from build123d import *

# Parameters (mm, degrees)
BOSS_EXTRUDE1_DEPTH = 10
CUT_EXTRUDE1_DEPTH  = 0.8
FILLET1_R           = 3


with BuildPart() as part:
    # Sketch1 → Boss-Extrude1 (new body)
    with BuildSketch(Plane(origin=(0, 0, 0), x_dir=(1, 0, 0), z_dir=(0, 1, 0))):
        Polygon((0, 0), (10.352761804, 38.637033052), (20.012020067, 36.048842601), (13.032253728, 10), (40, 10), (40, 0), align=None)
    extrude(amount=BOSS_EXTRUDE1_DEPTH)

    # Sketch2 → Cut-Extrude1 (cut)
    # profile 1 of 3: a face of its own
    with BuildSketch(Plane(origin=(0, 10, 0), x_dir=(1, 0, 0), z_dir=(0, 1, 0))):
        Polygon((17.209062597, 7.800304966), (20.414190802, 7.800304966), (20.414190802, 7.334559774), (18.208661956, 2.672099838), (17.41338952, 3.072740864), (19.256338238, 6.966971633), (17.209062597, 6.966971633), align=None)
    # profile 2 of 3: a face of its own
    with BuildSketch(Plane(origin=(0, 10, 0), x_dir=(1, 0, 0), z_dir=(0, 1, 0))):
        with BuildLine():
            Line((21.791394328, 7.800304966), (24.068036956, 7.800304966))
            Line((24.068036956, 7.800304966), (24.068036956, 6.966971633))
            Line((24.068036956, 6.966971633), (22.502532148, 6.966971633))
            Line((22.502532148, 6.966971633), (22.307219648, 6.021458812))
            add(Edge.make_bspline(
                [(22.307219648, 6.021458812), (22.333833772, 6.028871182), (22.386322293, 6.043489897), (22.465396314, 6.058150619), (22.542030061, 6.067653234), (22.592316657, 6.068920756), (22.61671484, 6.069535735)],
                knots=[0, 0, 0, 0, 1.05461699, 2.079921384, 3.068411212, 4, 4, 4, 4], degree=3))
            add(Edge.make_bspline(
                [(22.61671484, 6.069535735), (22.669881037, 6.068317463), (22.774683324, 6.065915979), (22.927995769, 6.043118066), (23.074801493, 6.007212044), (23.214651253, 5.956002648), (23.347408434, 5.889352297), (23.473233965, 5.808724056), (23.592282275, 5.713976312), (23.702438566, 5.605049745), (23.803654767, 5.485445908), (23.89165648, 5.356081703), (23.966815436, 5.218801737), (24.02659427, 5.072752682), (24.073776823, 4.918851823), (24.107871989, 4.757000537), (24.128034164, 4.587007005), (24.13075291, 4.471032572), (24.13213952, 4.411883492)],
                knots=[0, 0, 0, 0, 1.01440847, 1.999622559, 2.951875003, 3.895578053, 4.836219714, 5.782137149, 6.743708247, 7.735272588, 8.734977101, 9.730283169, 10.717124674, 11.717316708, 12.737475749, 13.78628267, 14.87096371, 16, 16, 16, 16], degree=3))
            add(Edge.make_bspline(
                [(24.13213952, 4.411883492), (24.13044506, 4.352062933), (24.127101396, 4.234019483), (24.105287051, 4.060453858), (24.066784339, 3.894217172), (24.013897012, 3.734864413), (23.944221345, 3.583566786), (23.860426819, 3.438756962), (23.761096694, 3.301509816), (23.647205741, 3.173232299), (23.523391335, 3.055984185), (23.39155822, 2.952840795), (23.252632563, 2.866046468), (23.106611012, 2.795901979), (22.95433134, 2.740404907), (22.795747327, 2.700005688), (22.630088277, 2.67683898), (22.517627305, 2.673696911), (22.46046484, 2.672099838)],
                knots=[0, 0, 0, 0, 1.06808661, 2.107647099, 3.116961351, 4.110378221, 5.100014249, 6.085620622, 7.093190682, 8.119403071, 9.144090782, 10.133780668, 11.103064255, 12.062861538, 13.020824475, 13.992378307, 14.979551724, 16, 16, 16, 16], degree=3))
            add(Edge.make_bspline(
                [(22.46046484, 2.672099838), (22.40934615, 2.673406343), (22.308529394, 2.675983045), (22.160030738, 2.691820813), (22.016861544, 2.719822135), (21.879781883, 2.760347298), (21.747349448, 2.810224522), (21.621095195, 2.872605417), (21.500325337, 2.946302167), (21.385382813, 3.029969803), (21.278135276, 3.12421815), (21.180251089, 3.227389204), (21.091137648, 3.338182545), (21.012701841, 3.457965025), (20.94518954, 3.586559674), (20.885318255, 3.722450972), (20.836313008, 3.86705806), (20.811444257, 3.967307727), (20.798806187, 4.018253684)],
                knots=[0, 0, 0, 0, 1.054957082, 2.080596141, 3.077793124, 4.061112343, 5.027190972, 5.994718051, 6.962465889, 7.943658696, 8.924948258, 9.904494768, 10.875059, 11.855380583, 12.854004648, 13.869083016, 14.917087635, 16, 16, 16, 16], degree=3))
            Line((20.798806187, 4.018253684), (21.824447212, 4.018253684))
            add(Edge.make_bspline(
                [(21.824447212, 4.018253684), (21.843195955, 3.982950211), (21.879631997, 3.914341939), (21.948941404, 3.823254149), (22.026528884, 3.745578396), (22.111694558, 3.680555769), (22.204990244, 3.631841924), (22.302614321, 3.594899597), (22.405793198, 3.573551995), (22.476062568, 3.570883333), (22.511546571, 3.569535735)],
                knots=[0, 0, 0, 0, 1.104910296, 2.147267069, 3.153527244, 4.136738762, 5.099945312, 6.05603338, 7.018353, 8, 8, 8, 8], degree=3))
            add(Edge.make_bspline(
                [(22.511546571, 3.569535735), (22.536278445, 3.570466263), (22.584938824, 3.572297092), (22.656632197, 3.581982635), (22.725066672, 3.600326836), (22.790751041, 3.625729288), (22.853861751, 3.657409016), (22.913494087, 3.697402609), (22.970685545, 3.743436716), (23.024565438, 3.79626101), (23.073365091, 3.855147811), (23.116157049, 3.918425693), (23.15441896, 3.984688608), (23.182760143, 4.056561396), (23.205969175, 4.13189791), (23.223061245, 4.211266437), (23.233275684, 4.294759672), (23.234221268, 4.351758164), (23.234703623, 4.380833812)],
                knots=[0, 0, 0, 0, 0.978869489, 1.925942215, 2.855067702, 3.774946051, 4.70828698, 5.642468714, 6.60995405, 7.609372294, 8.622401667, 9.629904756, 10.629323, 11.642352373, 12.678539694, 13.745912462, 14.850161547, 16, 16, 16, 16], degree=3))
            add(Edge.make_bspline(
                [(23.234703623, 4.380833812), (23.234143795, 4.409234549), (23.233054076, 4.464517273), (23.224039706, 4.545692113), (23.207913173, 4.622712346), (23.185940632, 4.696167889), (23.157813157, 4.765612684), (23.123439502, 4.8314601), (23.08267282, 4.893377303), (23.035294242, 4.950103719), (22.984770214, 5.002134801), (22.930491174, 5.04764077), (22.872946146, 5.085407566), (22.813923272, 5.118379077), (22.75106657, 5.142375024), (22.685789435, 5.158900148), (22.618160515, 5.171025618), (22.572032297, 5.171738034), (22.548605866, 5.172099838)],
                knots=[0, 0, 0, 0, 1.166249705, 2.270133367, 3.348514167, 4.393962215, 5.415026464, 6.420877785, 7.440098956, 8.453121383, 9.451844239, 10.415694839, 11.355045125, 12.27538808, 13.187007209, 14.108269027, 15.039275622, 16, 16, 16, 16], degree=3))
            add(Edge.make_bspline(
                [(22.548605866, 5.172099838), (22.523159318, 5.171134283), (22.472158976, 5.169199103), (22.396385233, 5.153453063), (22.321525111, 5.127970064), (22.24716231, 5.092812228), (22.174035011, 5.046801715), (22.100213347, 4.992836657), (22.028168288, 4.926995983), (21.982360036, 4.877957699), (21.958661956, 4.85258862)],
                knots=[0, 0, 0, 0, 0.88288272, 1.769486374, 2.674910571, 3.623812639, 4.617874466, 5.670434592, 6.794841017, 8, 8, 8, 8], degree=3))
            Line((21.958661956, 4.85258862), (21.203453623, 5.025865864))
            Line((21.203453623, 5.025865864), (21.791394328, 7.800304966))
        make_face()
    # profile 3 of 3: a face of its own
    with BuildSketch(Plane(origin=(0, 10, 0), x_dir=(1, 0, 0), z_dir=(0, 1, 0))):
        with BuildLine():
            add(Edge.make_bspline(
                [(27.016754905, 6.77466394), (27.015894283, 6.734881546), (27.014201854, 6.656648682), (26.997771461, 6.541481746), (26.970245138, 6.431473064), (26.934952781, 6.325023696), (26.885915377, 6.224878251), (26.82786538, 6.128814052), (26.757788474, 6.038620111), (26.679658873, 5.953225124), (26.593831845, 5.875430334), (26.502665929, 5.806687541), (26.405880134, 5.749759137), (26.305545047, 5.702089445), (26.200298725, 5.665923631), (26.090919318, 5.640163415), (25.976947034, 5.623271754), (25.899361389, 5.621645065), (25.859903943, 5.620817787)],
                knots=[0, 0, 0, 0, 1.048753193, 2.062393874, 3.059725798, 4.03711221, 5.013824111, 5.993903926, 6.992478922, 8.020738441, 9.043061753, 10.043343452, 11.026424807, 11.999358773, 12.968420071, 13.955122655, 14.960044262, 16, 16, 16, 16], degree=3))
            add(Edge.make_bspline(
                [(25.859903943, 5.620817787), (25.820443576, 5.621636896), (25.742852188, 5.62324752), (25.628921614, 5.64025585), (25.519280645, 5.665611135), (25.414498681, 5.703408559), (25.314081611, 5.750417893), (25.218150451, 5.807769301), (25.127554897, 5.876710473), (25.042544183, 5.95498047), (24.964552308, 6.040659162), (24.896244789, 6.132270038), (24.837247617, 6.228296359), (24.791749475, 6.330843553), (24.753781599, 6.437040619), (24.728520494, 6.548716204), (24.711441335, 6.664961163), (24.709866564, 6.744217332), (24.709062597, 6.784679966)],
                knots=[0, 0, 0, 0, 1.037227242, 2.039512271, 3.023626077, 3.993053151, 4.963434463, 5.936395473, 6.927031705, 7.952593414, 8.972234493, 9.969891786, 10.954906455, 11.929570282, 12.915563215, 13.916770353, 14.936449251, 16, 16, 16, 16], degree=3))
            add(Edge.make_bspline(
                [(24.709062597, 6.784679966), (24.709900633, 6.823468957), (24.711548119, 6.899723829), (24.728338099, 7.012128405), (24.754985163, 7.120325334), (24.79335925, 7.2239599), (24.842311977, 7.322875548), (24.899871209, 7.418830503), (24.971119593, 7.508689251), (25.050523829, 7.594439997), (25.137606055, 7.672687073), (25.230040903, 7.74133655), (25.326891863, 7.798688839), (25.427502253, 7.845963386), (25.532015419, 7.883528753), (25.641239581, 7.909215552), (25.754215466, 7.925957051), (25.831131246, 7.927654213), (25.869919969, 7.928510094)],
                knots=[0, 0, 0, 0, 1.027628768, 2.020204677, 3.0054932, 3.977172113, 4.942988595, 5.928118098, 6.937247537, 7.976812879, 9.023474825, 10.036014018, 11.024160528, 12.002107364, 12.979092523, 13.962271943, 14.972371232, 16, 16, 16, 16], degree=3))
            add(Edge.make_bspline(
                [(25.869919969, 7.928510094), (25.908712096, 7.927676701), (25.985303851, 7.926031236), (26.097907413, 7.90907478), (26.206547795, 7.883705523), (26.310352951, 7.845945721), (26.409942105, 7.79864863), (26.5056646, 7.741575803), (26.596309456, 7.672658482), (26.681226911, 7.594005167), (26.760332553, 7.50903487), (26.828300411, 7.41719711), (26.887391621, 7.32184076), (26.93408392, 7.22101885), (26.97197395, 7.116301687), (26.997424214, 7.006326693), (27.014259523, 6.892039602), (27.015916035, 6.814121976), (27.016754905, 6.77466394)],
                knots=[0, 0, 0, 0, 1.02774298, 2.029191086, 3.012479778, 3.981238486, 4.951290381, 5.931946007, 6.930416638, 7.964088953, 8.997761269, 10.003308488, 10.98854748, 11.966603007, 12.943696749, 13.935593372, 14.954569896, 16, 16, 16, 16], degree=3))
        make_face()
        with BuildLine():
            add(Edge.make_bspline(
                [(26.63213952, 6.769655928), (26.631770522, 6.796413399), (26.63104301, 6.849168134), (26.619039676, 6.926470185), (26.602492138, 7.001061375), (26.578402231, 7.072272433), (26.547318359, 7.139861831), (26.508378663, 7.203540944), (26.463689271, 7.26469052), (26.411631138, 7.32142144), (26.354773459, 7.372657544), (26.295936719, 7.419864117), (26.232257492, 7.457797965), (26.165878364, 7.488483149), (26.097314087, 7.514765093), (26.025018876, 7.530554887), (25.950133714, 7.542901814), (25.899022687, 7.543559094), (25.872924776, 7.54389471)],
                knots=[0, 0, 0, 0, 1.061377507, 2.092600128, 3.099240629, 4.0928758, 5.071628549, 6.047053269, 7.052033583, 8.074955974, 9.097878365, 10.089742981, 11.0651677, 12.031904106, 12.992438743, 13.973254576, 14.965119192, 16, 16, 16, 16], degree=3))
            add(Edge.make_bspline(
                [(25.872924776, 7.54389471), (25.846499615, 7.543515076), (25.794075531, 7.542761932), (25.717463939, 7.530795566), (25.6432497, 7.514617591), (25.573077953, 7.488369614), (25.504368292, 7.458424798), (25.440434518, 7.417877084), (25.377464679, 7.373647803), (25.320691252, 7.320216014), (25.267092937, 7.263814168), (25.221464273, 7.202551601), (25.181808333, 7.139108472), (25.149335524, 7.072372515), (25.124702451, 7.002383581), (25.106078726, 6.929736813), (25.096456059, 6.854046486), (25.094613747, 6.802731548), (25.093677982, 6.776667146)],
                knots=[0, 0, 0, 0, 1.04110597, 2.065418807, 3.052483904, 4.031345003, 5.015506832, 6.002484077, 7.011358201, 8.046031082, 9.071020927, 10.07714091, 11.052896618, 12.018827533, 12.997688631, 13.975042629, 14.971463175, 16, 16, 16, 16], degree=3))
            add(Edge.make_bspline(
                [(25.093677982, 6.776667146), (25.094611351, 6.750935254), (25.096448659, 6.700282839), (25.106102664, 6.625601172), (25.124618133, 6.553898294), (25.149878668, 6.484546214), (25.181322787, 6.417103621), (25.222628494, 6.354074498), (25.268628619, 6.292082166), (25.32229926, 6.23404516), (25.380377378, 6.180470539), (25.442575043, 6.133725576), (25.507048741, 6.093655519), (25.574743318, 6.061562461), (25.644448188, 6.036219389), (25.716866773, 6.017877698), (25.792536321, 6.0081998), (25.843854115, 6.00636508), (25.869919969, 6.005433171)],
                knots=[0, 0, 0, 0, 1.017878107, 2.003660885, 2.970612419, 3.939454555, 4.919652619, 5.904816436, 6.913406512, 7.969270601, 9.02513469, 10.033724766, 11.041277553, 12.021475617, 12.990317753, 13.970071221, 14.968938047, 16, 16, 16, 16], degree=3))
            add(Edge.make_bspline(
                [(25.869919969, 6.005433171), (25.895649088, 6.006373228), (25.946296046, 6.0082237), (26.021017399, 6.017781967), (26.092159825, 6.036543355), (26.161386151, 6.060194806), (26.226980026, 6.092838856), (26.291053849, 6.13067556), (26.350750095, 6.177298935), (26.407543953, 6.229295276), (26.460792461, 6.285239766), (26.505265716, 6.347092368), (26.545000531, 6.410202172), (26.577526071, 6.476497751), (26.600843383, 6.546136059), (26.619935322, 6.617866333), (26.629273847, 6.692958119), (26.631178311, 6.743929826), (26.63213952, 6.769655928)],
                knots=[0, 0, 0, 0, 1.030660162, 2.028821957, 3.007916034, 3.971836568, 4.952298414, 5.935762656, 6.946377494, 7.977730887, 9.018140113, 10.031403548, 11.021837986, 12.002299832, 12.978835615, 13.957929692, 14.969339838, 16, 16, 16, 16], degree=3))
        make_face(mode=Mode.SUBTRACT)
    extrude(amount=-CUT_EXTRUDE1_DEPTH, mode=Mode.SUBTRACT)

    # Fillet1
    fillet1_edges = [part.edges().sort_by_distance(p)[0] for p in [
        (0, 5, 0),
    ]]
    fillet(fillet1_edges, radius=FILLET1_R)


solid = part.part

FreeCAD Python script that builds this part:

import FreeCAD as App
import Part
import Sketcher
from FreeCAD import Vector
Q = App.Units.Quantity


def edges_at(feature, points):
    """Names of the edges that pass closest to the given points."""
    edges = feature.Shape.Edges
    near = lambda p: min(range(len(edges)), key=lambda i: edges[i].distToShape(Part.Vertex(*p))[0])
    return sorted({f"Edge{near(p) + 1}" for p in points})


def add_polygon(sketch, points):
    """Adds a closed chain of lines whose ends are joined by coincident constraints."""
    first, n = sketch.GeometryCount, len(points)
    for a, b in zip(points, points[1:] + points[:1]):
        sketch.addGeometry(Part.LineSegment(App.Vector(*a, 0), App.Vector(*b, 0)), False)
    for i in range(n):
        sketch.addConstraint(Sketcher.Constraint("Coincident", first + i, 2, first + (i + 1) % n, 1))

doc = App.newDocument("Part")
body = doc.addObject("PartDesign::Body", "Body")

sketch1 = body.newObject("Sketcher::SketchObject", "Sketch")
sketch1.AttachmentSupport = (doc.getObject("XZ_Plane"), [""])
sketch1.MapMode = "FlatFace"
add_polygon(sketch1, [(10.352762, -38.637033), (0, 0), (40, 0), (40, -10), (13.032254, -10), (20.01202, -36.048843)])
sketch1.addConstraint(Sketcher.Constraint("Horizontal", 1))
sketch1.addConstraint(Sketcher.Constraint("Vertical", 2))
sketch1.addConstraint(Sketcher.Constraint("Horizontal", 3))
sketch1.addConstraint(Sketcher.Constraint("Coincident", 0, 2, -1, 1))
sketch1.addConstraint(Sketcher.Constraint("Parallel", 0, 4))
sketch1.addConstraint(Sketcher.Constraint("Perpendicular", 4, 5))
sketch1.addConstraint(Sketcher.Constraint("DistanceX", 1, 1, 1, 2, Q("40 mm")))
sketch1.addConstraint(Sketcher.Constraint("DistanceY", 2, 2, 2, 1, Q("10 mm")))
sketch1.addConstraint(Sketcher.Constraint("Angle", 0, Q("105 deg")))
sketch1.addConstraint(Sketcher.Constraint("Distance", 0, Q("40 mm")))
sketch1.addConstraint(Sketcher.Constraint("Distance", 5, Q("10 mm")))
pad1 = body.newObject("PartDesign::Pad", "Pad")
pad1.Profile = sketch1
pad1.Length = 10
pad1.Reversed = True

sketch2 = body.newObject("Sketcher::SketchObject", "Sketch001")
sketch2.AttachmentSupport = (doc.getObject("XZ_Plane"), [""])
sketch2.MapMode = "FlatFace"
sketch2.AttachmentOffset = App.Placement(Vector(0, 0, -10), App.Rotation())
add_polygon(sketch2, [(20.414191, -7.800305), (17.209063, -7.800305), (17.209063, -6.966972), (19.256338, -6.966972), (17.41339, -3.072741), (18.208662, -2.6721), (20.414191, -7.33456)])
sketch2.addGeometry(Part.LineSegment(Vector(24.068037, -7.800305, 0), Vector(21.791394, -7.800305, 0)), False)
sketch2.addGeometry(Part.LineSegment(Vector(21.791394, -7.800305, 0), Vector(21.203454, -5.025866, 0)), False)
sketch2.addGeometry(Part.LineSegment(Vector(21.203454, -5.025866, 0), Vector(21.958662, -4.852589, 0)), False)
sketch2.addGeometry(Part.BSplineCurve([Vector(22.548606, -5.1721, 0), Vector(22.523159, -5.171134, 0), Vector(22.472159, -5.169199, 0), Vector(22.396385, -5.153453, 0), Vector(22.321525, -5.12797, 0), Vector(22.247162, -5.092812, 0), Vector(22.174035, -5.046802, 0), Vector(22.100213, -4.992837, 0), Vector(22.028168, -4.926996, 0), Vector(21.98236, -4.877958, 0), Vector(21.958662, -4.852589, 0)], [4, 1, 1, 1, 1, 1, 1, 1, 4], [0, 0.88288272, 1.769486374, 2.674910571, 3.623812639, 4.617874466, 5.670434592, 6.794841017, 8], False, 3, [1, 1, 1, 1, 1, 1, 1, 1, 1, 1, 1], False), False)
sketch2.addGeometry(Part.BSplineCurve([Vector(23.234704, -4.380834, 0), Vector(23.234144, -4.409235, 0), Vector(23.233054, -4.464517, 0), Vector(23.22404, -4.545692, 0), Vector(23.207913, -4.622712, 0), Vector(23.185941, -4.696168, 0), Vector(23.157813, -4.765613, 0), Vector(23.12344, -4.83146, 0), Vector(23.082673, -4.893377, 0), Vector(23.035294, -4.950104, 0), Vector(22.98477, -5.002135, 0), Vector(22.930491, -5.047641, 0), Vector(22.872946, -5.085408, 0), Vector(22.813923, -5.118379, 0), Vector(22.751067, -5.142375, 0), Vector(22.685789, -5.1589, 0), Vector(22.618161, -5.171026, 0), Vector(22.572032, -5.171738, 0), Vector(22.548606, -5.1721, 0)], [4, 1, 1, 1, 1, 1, 1, 1, 1, 1, 1, 1, 1, 1, 1, 1, 4], [0, 1.166249705, 2.270133367, 3.348514167, 4.393962215, 5.415026464, 6.420877785, 7.440098956, 8.453121383, 9.451844239, 10.415694839, 11.355045125, 12.27538808, 13.187007209, 14.108269027, 15.039275622, 16], False, 3, [1, 1, 1, 1, 1, 1, 1, 1, 1, 1, 1, 1, 1, 1, 1, 1, 1, 1, 1], False), False)
sketch2.addGeometry(Part.BSplineCurve([Vector(22.511547, -3.569536, 0), Vector(22.536278, -3.570466, 0), Vector(22.584939, -3.572297, 0), Vector(22.656632, -3.581983, 0), Vector(22.725067, -3.600327, 0), Vector(22.790751, -3.625729, 0), Vector(22.853862, -3.657409, 0), Vector(22.913494, -3.697403, 0), Vector(22.970686, -3.743437, 0), Vector(23.024565, -3.796261, 0), Vector(23.073365, -3.855148, 0), Vector(23.116157, -3.918426, 0), Vector(23.154419, -3.984689, 0), Vector(23.18276, -4.056561, 0), Vector(23.205969, -4.131898, 0), Vector(23.223061, -4.211266, 0), Vector(23.233276, -4.29476, 0), Vector(23.234221, -4.351758, 0), Vector(23.234704, -4.380834, 0)], [4, 1, 1, 1, 1, 1, 1, 1, 1, 1, 1, 1, 1, 1, 1, 1, 4], [0, 0.978869489, 1.925942215, 2.855067702, 3.774946051, 4.70828698, 5.642468714, 6.60995405, 7.609372294, 8.622401667, 9.629904756, 10.629323, 11.642352373, 12.678539694, 13.745912462, 14.850161547, 16], False, 3, [1, 1, 1, 1, 1, 1, 1, 1, 1, 1, 1, 1, 1, 1, 1, 1, 1, 1, 1], False), False)
sketch2.addGeometry(Part.BSplineCurve([Vector(21.824447, -4.018254, 0), Vector(21.843196, -3.98295, 0), Vector(21.879632, -3.914342, 0), Vector(21.948941, -3.823254, 0), Vector(22.026529, -3.745578, 0), Vector(22.111695, -3.680556, 0), Vector(22.20499, -3.631842, 0), Vector(22.302614, -3.5949, 0), Vector(22.405793, -3.573552, 0), Vector(22.476063, -3.570883, 0), Vector(22.511547, -3.569536, 0)], [4, 1, 1, 1, 1, 1, 1, 1, 4], [0, 1.104910296, 2.147267069, 3.153527244, 4.136738762, 5.099945312, 6.05603338, 7.018353, 8], False, 3, [1, 1, 1, 1, 1, 1, 1, 1, 1, 1, 1], False), False)
sketch2.addGeometry(Part.LineSegment(Vector(21.824447, -4.018254, 0), Vector(20.798806, -4.018254, 0)), False)
sketch2.addGeometry(Part.BSplineCurve([Vector(22.460465, -2.6721, 0), Vector(22.409346, -2.673406, 0), Vector(22.308529, -2.675983, 0), Vector(22.160031, -2.691821, 0), Vector(22.016862, -2.719822, 0), Vector(21.879782, -2.760347, 0), Vector(21.747349, -2.810225, 0), Vector(21.621095, -2.872605, 0), Vector(21.500325, -2.946302, 0), Vector(21.385383, -3.02997, 0), Vector(21.278135, -3.124218, 0), Vector(21.180251, -3.227389, 0), Vector(21.091138, -3.338183, 0), Vector(21.012702, -3.457965, 0), Vector(20.94519, -3.58656, 0), Vector(20.885318, -3.722451, 0), Vector(20.836313, -3.867058, 0), Vector(20.811444, -3.967308, 0), Vector(20.798806, -4.018254, 0)], [4, 1, 1, 1, 1, 1, 1, 1, 1, 1, 1, 1, 1, 1, 1, 1, 4], [0, 1.054957082, 2.080596141, 3.077793124, 4.061112343, 5.027190972, 5.994718051, 6.962465889, 7.943658696, 8.924948258, 9.904494768, 10.875059, 11.855380583, 12.854004648, 13.869083016, 14.917087635, 16], False, 3, [1, 1, 1, 1, 1, 1, 1, 1, 1, 1, 1, 1, 1, 1, 1, 1, 1, 1, 1], False), False)
sketch2.addGeometry(Part.BSplineCurve([Vector(24.13214, -4.411883, 0), Vector(24.130445, -4.352063, 0), Vector(24.127101, -4.234019, 0), Vector(24.105287, -4.060454, 0), Vector(24.066784, -3.894217, 0), Vector(24.013897, -3.734864, 0), Vector(23.944221, -3.583567, 0), Vector(23.860427, -3.438757, 0), Vector(23.761097, -3.30151, 0), Vector(23.647206, -3.173232, 0), Vector(23.523391, -3.055984, 0), Vector(23.391558, -2.952841, 0), Vector(23.252633, -2.866046, 0), Vector(23.106611, -2.795902, 0), Vector(22.954331, -2.740405, 0), Vector(22.795747, -2.700006, 0), Vector(22.630088, -2.676839, 0), Vector(22.517627, -2.673697, 0), Vector(22.460465, -2.6721, 0)], [4, 1, 1, 1, 1, 1, 1, 1, 1, 1, 1, 1, 1, 1, 1, 1, 4], [0, 1.06808661, 2.107647099, 3.116961351, 4.110378221, 5.100014249, 6.085620622, 7.093190682, 8.119403071, 9.144090782, 10.133780668, 11.103064255, 12.062861538, 13.020824475, 13.992378307, 14.979551724, 16], False, 3, [1, 1, 1, 1, 1, 1, 1, 1, 1, 1, 1, 1, 1, 1, 1, 1, 1, 1, 1], False), False)
sketch2.addGeometry(Part.BSplineCurve([Vector(22.616715, -6.069536, 0), Vector(22.669881, -6.068317, 0), Vector(22.774683, -6.065916, 0), Vector(22.927996, -6.043118, 0), Vector(23.074801, -6.007212, 0), Vector(23.214651, -5.956003, 0), Vector(23.347408, -5.889352, 0), Vector(23.473234, -5.808724, 0), Vector(23.592282, -5.713976, 0), Vector(23.702439, -5.60505, 0), Vector(23.803655, -5.485446, 0), Vector(23.891656, -5.356082, 0), Vector(23.966815, -5.218802, 0), Vector(24.026594, -5.072753, 0), Vector(24.073777, -4.918852, 0), Vector(24.107872, -4.757001, 0), Vector(24.128034, -4.587007, 0), Vector(24.130753, -4.471033, 0), Vector(24.13214, -4.411883, 0)], [4, 1, 1, 1, 1, 1, 1, 1, 1, 1, 1, 1, 1, 1, 1, 1, 4], [0, 1.01440847, 1.999622559, 2.951875003, 3.895578053, 4.836219714, 5.782137149, 6.743708247, 7.735272588, 8.734977101, 9.730283169, 10.717124674, 11.717316708, 12.737475749, 13.78628267, 14.87096371, 16], False, 3, [1, 1, 1, 1, 1, 1, 1, 1, 1, 1, 1, 1, 1, 1, 1, 1, 1, 1, 1], False), False)
sketch2.addGeometry(Part.BSplineCurve([Vector(22.30722, -6.021459, 0), Vector(22.333834, -6.028871, 0), Vector(22.386322, -6.04349, 0), Vector(22.465396, -6.058151, 0), Vector(22.54203, -6.067653, 0), Vector(22.592317, -6.068921, 0), Vector(22.616715, -6.069536, 0)], [4, 1, 1, 1, 4], [0, 1.05461699, 2.079921384, 3.068411212, 4], False, 3, [1, 1, 1, 1, 1, 1, 1], False), False)
sketch2.addGeometry(Part.LineSegment(Vector(22.30722, -6.021459, 0), Vector(22.502532, -6.966972, 0)), False)
sketch2.addGeometry(Part.LineSegment(Vector(22.502532, -6.966972, 0), Vector(24.068037, -6.966972, 0)), False)
sketch2.addGeometry(Part.LineSegment(Vector(24.068037, -6.966972, 0), Vector(24.068037, -7.800305, 0)), False)
sketch2.addGeometry(Part.BSplineCurve([Vector(27.016755, -6.774664, 0), Vector(27.015894, -6.734882, 0), Vector(27.014202, -6.656649, 0), Vector(26.997771, -6.541482, 0), Vector(26.970245, -6.431473, 0), Vector(26.934953, -6.325024, 0), Vector(26.885915, -6.224878, 0), Vector(26.827865, -6.128814, 0), Vector(26.757788, -6.03862, 0), Vector(26.679659, -5.953225, 0), Vector(26.593832, -5.87543, 0), Vector(26.502666, -5.806688, 0), Vector(26.40588, -5.749759, 0), Vector(26.305545, -5.702089, 0), Vector(26.200299, -5.665924, 0), Vector(26.090919, -5.640163, 0), Vector(25.976947, -5.623272, 0), Vector(25.899361, -5.621645, 0), Vector(25.859904, -5.620818, 0)], [4, 1, 1, 1, 1, 1, 1, 1, 1, 1, 1, 1, 1, 1, 1, 1, 4], [0, 1.048753193, 2.062393874, 3.059725798, 4.03711221, 5.013824111, 5.993903926, 6.992478922, 8.020738441, 9.043061753, 10.043343452, 11.026424807, 11.999358773, 12.968420071, 13.955122655, 14.960044262, 16], False, 3, [1, 1, 1, 1, 1, 1, 1, 1, 1, 1, 1, 1, 1, 1, 1, 1, 1, 1, 1], False), False)
sketch2.addGeometry(Part.BSplineCurve([Vector(25.86992, -7.92851, 0), Vector(25.908712, -7.927677, 0), Vector(25.985304, -7.926031, 0), Vector(26.097907, -7.909075, 0), Vector(26.206548, -7.883706, 0), Vector(26.310353, -7.845946, 0), Vector(26.409942, -7.798649, 0), Vector(26.505665, -7.741576, 0), Vector(26.596309, -7.672658, 0), Vector(26.681227, -7.594005, 0), Vector(26.760333, -7.509035, 0), Vector(26.8283, -7.417197, 0), Vector(26.887392, -7.321841, 0), Vector(26.934084, -7.221019, 0), Vector(26.971974, -7.116302, 0), Vector(26.997424, -7.006327, 0), Vector(27.01426, -6.89204, 0), Vector(27.015916, -6.814122, 0), Vector(27.016755, -6.774664, 0)], [4, 1, 1, 1, 1, 1, 1, 1, 1, 1, 1, 1, 1, 1, 1, 1, 4], [0, 1.02774298, 2.029191086, 3.012479778, 3.981238486, 4.951290381, 5.931946007, 6.930416638, 7.964088953, 8.997761269, 10.003308488, 10.98854748, 11.966603007, 12.943696749, 13.935593372, 14.954569896, 16], False, 3, [1, 1, 1, 1, 1, 1, 1, 1, 1, 1, 1, 1, 1, 1, 1, 1, 1, 1, 1], False), False)
sketch2.addGeometry(Part.BSplineCurve([Vector(24.709063, -6.78468, 0), Vector(24.709901, -6.823469, 0), Vector(24.711548, -6.899724, 0), Vector(24.728338, -7.012128, 0), Vector(24.754985, -7.120325, 0), Vector(24.793359, -7.22396, 0), Vector(24.842312, -7.322876, 0), Vector(24.899871, -7.418831, 0), Vector(24.97112, -7.508689, 0), Vector(25.050524, -7.59444, 0), Vector(25.137606, -7.672687, 0), Vector(25.230041, -7.741337, 0), Vector(25.326892, -7.798689, 0), Vector(25.427502, -7.845963, 0), Vector(25.532015, -7.883529, 0), Vector(25.64124, -7.909216, 0), Vector(25.754215, -7.925957, 0), Vector(25.831131, -7.927654, 0), Vector(25.86992, -7.92851, 0)], [4, 1, 1, 1, 1, 1, 1, 1, 1, 1, 1, 1, 1, 1, 1, 1, 4], [0, 1.027628768, 2.020204677, 3.0054932, 3.977172113, 4.942988595, 5.928118098, 6.937247537, 7.976812879, 9.023474825, 10.036014018, 11.024160528, 12.002107364, 12.979092523, 13.962271943, 14.972371232, 16], False, 3, [1, 1, 1, 1, 1, 1, 1, 1, 1, 1, 1, 1, 1, 1, 1, 1, 1, 1, 1], False), False)
sketch2.addGeometry(Part.BSplineCurve([Vector(25.859904, -5.620818, 0), Vector(25.820444, -5.621637, 0), Vector(25.742852, -5.623248, 0), Vector(25.628922, -5.640256, 0), Vector(25.519281, -5.665611, 0), Vector(25.414499, -5.703409, 0), Vector(25.314082, -5.750418, 0), Vector(25.21815, -5.807769, 0), Vector(25.127555, -5.87671, 0), Vector(25.042544, -5.95498, 0), Vector(24.964552, -6.040659, 0), Vector(24.896245, -6.13227, 0), Vector(24.837248, -6.228296, 0), Vector(24.791749, -6.330844, 0), Vector(24.753782, -6.437041, 0), Vector(24.72852, -6.548716, 0), Vector(24.711441, -6.664961, 0), Vector(24.709867, -6.744217, 0), Vector(24.709063, -6.78468, 0)], [4, 1, 1, 1, 1, 1, 1, 1, 1, 1, 1, 1, 1, 1, 1, 1, 4], [0, 1.037227242, 2.039512271, 3.023626077, 3.993053151, 4.963434463, 5.936395473, 6.927031705, 7.952593414, 8.972234493, 9.969891786, 10.954906455, 11.929570282, 12.915563215, 13.916770353, 14.936449251, 16], False, 3, [1, 1, 1, 1, 1, 1, 1, 1, 1, 1, 1, 1, 1, 1, 1, 1, 1, 1, 1], False), False)
sketch2.addGeometry(Part.BSplineCurve([Vector(25.86992, -6.005433, 0), Vector(25.895649, -6.006373, 0), Vector(25.946296, -6.008224, 0), Vector(26.021017, -6.017782, 0), Vector(26.09216, -6.036543, 0), Vector(26.161386, -6.060195, 0), Vector(26.22698, -6.092839, 0), Vector(26.291054, -6.130676, 0), Vector(26.35075, -6.177299, 0), Vector(26.407544, -6.229295, 0), Vector(26.460792, -6.28524, 0), Vector(26.505266, -6.347092, 0), Vector(26.545001, -6.410202, 0), Vector(26.577526, -6.476498, 0), Vector(26.600843, -6.546136, 0), Vector(26.619935, -6.617866, 0), Vector(26.629274, -6.692958, 0), Vector(26.631178, -6.74393, 0), Vector(26.63214, -6.769656, 0)], [4, 1, 1, 1, 1, 1, 1, 1, 1, 1, 1, 1, 1, 1, 1, 1, 4], [0, 1.030660162, 2.028821957, 3.007916034, 3.971836568, 4.952298414, 5.935762656, 6.946377494, 7.977730887, 9.018140113, 10.031403548, 11.021837986, 12.002299832, 12.978835615, 13.957929692, 14.969339838, 16], False, 3, [1, 1, 1, 1, 1, 1, 1, 1, 1, 1, 1, 1, 1, 1, 1, 1, 1, 1, 1], False), False)
sketch2.addGeometry(Part.BSplineCurve([Vector(25.093678, -6.776667, 0), Vector(25.094611, -6.750935, 0), Vector(25.096449, -6.700283, 0), Vector(25.106103, -6.625601, 0), Vector(25.124618, -6.553898, 0), Vector(25.149879, -6.484546, 0), Vector(25.181323, -6.417104, 0), Vector(25.222628, -6.354074, 0), Vector(25.268629, -6.292082, 0), Vector(25.322299, -6.234045, 0), Vector(25.380377, -6.180471, 0), Vector(25.442575, -6.133726, 0), Vector(25.507049, -6.093656, 0), Vector(25.574743, -6.061562, 0), Vector(25.644448, -6.036219, 0), Vector(25.716867, -6.017878, 0), Vector(25.792536, -6.0082, 0), Vector(25.843854, -6.006365, 0), Vector(25.86992, -6.005433, 0)], [4, 1, 1, 1, 1, 1, 1, 1, 1, 1, 1, 1, 1, 1, 1, 1, 4], [0, 1.017878107, 2.003660885, 2.970612419, 3.939454555, 4.919652619, 5.904816436, 6.913406512, 7.969270601, 9.02513469, 10.033724766, 11.041277553, 12.021475617, 12.990317753, 13.970071221, 14.968938047, 16], False, 3, [1, 1, 1, 1, 1, 1, 1, 1, 1, 1, 1, 1, 1, 1, 1, 1, 1, 1, 1], False), False)
sketch2.addGeometry(Part.BSplineCurve([Vector(25.872925, -7.543895, 0), Vector(25.8465, -7.543515, 0), Vector(25.794076, -7.542762, 0), Vector(25.717464, -7.530796, 0), Vector(25.64325, -7.514618, 0), Vector(25.573078, -7.48837, 0), Vector(25.504368, -7.458425, 0), Vector(25.440435, -7.417877, 0), Vector(25.377465, -7.373648, 0), Vector(25.320691, -7.320216, 0), Vector(25.267093, -7.263814, 0), Vector(25.221464, -7.202552, 0), Vector(25.181808, -7.139108, 0), Vector(25.149336, -7.072373, 0), Vector(25.124702, -7.002384, 0), Vector(25.106079, -6.929737, 0), Vector(25.096456, -6.854046, 0), Vector(25.094614, -6.802732, 0), Vector(25.093678, -6.776667, 0)], [4, 1, 1, 1, 1, 1, 1, 1, 1, 1, 1, 1, 1, 1, 1, 1, 4], [0, 1.04110597, 2.065418807, 3.052483904, 4.031345003, 5.015506832, 6.002484077, 7.011358201, 8.046031082, 9.071020927, 10.07714091, 11.052896618, 12.018827533, 12.997688631, 13.975042629, 14.971463175, 16], False, 3, [1, 1, 1, 1, 1, 1, 1, 1, 1, 1, 1, 1, 1, 1, 1, 1, 1, 1, 1], False), False)
sketch2.addGeometry(Part.BSplineCurve([Vector(26.63214, -6.769656, 0), Vector(26.631771, -6.796413, 0), Vector(26.631043, -6.849168, 0), Vector(26.61904, -6.92647, 0), Vector(26.602492, -7.001061, 0), Vector(26.578402, -7.072272, 0), Vector(26.547318, -7.139862, 0), Vector(26.508379, -7.203541, 0), Vector(26.463689, -7.264691, 0), Vector(26.411631, -7.321421, 0), Vector(26.354773, -7.372658, 0), Vector(26.295937, -7.419864, 0), Vector(26.232257, -7.457798, 0), Vector(26.165878, -7.488483, 0), Vector(26.097314, -7.514765, 0), Vector(26.025019, -7.530555, 0), Vector(25.950134, -7.542902, 0), Vector(25.899023, -7.543559, 0), Vector(25.872925, -7.543895, 0)], [4, 1, 1, 1, 1, 1, 1, 1, 1, 1, 1, 1, 1, 1, 1, 1, 4], [0, 1.061377507, 2.092600128, 3.099240629, 4.0928758, 5.071628549, 6.047053269, 7.052033583, 8.074955974, 9.097878365, 10.089742981, 11.0651677, 12.031904106, 12.992438743, 13.973254576, 14.965119192, 16], False, 3, [1, 1, 1, 1, 1, 1, 1, 1, 1, 1, 1, 1, 1, 1, 1, 1, 1, 1, 1], False), False)
sketch2.addConstraint(Sketcher.Constraint("Block", 10))
sketch2.addConstraint(Sketcher.Constraint("Block", 11))
sketch2.addConstraint(Sketcher.Constraint("Block", 12))
sketch2.addConstraint(Sketcher.Constraint("Block", 13))
sketch2.addConstraint(Sketcher.Constraint("Block", 15))
sketch2.addConstraint(Sketcher.Constraint("Block", 16))
sketch2.addConstraint(Sketcher.Constraint("Block", 17))
sketch2.addConstraint(Sketcher.Constraint("Block", 18))
sketch2.addConstraint(Sketcher.Constraint("Block", 22))
sketch2.addConstraint(Sketcher.Constraint("Block", 23))
sketch2.addConstraint(Sketcher.Constraint("Block", 24))
sketch2.addConstraint(Sketcher.Constraint("Block", 25))
sketch2.addConstraint(Sketcher.Constraint("Block", 26))
sketch2.addConstraint(Sketcher.Constraint("Block", 27))
sketch2.addConstraint(Sketcher.Constraint("Block", 28))
sketch2.addConstraint(Sketcher.Constraint("Block", 29))
sketch2.addConstraint(Sketcher.Constraint("Coincident", 7, 2, 8, 1))
sketch2.addConstraint(Sketcher.Constraint("Coincident", 8, 2, 9, 1))
sketch2.addConstraint(Sketcher.Constraint("Coincident", 9, 2, 10, 2))
sketch2.addConstraint(Sketcher.Constraint("Coincident", 13, 1, 14, 1))
sketch2.addConstraint(Sketcher.Constraint("Coincident", 14, 2, 15, 2))
sketch2.addConstraint(Sketcher.Constraint("Coincident", 18, 1, 19, 1))
sketch2.addConstraint(Sketcher.Constraint("Coincident", 19, 2, 20, 1))
sketch2.addConstraint(Sketcher.Constraint("Coincident", 20, 2, 21, 1))
sketch2.addConstraint(Sketcher.Constraint("Coincident", 21, 2, 7, 1))
sketch2.addConstraint(Sketcher.Constraint("Horizontal", 0))
sketch2.addConstraint(Sketcher.Constraint("Vertical", 1))
sketch2.addConstraint(Sketcher.Constraint("Horizontal", 2))
sketch2.addConstraint(Sketcher.Constraint("Vertical", 6))
sketch2.addConstraint(Sketcher.Constraint("Horizontal", 7))
sketch2.addConstraint(Sketcher.Constraint("Horizontal", 20))
sketch2.addConstraint(Sketcher.Constraint("Vertical", 21))
sketch2.addConstraint(Sketcher.Constraint("Horizontal", 6, 2, 7, 2))
sketch2.addConstraint(Sketcher.Constraint("Horizontal", 2, 2, 19, 2))
sketch2.addConstraint(Sketcher.Constraint("Distance", 5, Q("5.157799 mm")))
sketch2.addConstraint(Sketcher.Constraint("DistanceX", 0, 2, 0, 1, Q("3.205128 mm")))
sketch2.addConstraint(Sketcher.Constraint("DistanceY", 4, 2, -1, 1, Q("2.6721 mm")))
sketch2.addConstraint(Sketcher.Constraint("DistanceX", 1, 2, 4, 2, Q("0.999599 mm")))
sketch2.addConstraint(Sketcher.Constraint("DistanceX", 3, 2, 5, 2, Q("3.000801 mm")))
sketch2.addConstraint(Sketcher.Constraint("Distance", 4, Q("0.890489 mm")))
sketch2.addConstraint(Sketcher.Constraint("Distance", 8, Q("2.836051 mm")))
sketch2.addConstraint(Sketcher.Constraint("DistanceX", 2, 1, 2, 2, Q("2.047276 mm")))
sketch2.addConstraint(Sketcher.Constraint("DistanceX", 7, 2, 7, 1, Q("2.276643 mm")))
sketch2.addConstraint(Sketcher.Constraint("DistanceX", 20, 1, 20, 2, Q("1.565505 mm")))
sketch2.addConstraint(Sketcher.Constraint("DistanceY", 1, 1, 1, 2, Q("0.833333 mm")))
sketch2.addConstraint(Sketcher.Constraint("DistanceY", 6, 2, 6, 1, Q("0.465745 mm")))
sketch2.addConstraint(Sketcher.Constraint("DistanceX", -1, 1, 2, 2, Q("19.256338 mm")))
sketch2.addConstraint(Sketcher.Constraint("DistanceX", 0, 2, 7, 2, Q("4.582332 mm")))
sketch2.addConstraint(Sketcher.Constraint("DistanceX", 8, 2, 7, 2, Q("0.587941 mm")))
pocket1 = body.newObject("PartDesign::Pocket", "Pocket")
pocket1.Profile = sketch2
pocket1.Length = 0.8
pocket1.Reversed = True
doc.recompute()

fillet = body.newObject("PartDesign::Fillet", "Fillet")
fillet.Base = (pocket1, edges_at(pocket1, [(0, 5, 0)]))
fillet.Radius = 3

doc.recompute()
